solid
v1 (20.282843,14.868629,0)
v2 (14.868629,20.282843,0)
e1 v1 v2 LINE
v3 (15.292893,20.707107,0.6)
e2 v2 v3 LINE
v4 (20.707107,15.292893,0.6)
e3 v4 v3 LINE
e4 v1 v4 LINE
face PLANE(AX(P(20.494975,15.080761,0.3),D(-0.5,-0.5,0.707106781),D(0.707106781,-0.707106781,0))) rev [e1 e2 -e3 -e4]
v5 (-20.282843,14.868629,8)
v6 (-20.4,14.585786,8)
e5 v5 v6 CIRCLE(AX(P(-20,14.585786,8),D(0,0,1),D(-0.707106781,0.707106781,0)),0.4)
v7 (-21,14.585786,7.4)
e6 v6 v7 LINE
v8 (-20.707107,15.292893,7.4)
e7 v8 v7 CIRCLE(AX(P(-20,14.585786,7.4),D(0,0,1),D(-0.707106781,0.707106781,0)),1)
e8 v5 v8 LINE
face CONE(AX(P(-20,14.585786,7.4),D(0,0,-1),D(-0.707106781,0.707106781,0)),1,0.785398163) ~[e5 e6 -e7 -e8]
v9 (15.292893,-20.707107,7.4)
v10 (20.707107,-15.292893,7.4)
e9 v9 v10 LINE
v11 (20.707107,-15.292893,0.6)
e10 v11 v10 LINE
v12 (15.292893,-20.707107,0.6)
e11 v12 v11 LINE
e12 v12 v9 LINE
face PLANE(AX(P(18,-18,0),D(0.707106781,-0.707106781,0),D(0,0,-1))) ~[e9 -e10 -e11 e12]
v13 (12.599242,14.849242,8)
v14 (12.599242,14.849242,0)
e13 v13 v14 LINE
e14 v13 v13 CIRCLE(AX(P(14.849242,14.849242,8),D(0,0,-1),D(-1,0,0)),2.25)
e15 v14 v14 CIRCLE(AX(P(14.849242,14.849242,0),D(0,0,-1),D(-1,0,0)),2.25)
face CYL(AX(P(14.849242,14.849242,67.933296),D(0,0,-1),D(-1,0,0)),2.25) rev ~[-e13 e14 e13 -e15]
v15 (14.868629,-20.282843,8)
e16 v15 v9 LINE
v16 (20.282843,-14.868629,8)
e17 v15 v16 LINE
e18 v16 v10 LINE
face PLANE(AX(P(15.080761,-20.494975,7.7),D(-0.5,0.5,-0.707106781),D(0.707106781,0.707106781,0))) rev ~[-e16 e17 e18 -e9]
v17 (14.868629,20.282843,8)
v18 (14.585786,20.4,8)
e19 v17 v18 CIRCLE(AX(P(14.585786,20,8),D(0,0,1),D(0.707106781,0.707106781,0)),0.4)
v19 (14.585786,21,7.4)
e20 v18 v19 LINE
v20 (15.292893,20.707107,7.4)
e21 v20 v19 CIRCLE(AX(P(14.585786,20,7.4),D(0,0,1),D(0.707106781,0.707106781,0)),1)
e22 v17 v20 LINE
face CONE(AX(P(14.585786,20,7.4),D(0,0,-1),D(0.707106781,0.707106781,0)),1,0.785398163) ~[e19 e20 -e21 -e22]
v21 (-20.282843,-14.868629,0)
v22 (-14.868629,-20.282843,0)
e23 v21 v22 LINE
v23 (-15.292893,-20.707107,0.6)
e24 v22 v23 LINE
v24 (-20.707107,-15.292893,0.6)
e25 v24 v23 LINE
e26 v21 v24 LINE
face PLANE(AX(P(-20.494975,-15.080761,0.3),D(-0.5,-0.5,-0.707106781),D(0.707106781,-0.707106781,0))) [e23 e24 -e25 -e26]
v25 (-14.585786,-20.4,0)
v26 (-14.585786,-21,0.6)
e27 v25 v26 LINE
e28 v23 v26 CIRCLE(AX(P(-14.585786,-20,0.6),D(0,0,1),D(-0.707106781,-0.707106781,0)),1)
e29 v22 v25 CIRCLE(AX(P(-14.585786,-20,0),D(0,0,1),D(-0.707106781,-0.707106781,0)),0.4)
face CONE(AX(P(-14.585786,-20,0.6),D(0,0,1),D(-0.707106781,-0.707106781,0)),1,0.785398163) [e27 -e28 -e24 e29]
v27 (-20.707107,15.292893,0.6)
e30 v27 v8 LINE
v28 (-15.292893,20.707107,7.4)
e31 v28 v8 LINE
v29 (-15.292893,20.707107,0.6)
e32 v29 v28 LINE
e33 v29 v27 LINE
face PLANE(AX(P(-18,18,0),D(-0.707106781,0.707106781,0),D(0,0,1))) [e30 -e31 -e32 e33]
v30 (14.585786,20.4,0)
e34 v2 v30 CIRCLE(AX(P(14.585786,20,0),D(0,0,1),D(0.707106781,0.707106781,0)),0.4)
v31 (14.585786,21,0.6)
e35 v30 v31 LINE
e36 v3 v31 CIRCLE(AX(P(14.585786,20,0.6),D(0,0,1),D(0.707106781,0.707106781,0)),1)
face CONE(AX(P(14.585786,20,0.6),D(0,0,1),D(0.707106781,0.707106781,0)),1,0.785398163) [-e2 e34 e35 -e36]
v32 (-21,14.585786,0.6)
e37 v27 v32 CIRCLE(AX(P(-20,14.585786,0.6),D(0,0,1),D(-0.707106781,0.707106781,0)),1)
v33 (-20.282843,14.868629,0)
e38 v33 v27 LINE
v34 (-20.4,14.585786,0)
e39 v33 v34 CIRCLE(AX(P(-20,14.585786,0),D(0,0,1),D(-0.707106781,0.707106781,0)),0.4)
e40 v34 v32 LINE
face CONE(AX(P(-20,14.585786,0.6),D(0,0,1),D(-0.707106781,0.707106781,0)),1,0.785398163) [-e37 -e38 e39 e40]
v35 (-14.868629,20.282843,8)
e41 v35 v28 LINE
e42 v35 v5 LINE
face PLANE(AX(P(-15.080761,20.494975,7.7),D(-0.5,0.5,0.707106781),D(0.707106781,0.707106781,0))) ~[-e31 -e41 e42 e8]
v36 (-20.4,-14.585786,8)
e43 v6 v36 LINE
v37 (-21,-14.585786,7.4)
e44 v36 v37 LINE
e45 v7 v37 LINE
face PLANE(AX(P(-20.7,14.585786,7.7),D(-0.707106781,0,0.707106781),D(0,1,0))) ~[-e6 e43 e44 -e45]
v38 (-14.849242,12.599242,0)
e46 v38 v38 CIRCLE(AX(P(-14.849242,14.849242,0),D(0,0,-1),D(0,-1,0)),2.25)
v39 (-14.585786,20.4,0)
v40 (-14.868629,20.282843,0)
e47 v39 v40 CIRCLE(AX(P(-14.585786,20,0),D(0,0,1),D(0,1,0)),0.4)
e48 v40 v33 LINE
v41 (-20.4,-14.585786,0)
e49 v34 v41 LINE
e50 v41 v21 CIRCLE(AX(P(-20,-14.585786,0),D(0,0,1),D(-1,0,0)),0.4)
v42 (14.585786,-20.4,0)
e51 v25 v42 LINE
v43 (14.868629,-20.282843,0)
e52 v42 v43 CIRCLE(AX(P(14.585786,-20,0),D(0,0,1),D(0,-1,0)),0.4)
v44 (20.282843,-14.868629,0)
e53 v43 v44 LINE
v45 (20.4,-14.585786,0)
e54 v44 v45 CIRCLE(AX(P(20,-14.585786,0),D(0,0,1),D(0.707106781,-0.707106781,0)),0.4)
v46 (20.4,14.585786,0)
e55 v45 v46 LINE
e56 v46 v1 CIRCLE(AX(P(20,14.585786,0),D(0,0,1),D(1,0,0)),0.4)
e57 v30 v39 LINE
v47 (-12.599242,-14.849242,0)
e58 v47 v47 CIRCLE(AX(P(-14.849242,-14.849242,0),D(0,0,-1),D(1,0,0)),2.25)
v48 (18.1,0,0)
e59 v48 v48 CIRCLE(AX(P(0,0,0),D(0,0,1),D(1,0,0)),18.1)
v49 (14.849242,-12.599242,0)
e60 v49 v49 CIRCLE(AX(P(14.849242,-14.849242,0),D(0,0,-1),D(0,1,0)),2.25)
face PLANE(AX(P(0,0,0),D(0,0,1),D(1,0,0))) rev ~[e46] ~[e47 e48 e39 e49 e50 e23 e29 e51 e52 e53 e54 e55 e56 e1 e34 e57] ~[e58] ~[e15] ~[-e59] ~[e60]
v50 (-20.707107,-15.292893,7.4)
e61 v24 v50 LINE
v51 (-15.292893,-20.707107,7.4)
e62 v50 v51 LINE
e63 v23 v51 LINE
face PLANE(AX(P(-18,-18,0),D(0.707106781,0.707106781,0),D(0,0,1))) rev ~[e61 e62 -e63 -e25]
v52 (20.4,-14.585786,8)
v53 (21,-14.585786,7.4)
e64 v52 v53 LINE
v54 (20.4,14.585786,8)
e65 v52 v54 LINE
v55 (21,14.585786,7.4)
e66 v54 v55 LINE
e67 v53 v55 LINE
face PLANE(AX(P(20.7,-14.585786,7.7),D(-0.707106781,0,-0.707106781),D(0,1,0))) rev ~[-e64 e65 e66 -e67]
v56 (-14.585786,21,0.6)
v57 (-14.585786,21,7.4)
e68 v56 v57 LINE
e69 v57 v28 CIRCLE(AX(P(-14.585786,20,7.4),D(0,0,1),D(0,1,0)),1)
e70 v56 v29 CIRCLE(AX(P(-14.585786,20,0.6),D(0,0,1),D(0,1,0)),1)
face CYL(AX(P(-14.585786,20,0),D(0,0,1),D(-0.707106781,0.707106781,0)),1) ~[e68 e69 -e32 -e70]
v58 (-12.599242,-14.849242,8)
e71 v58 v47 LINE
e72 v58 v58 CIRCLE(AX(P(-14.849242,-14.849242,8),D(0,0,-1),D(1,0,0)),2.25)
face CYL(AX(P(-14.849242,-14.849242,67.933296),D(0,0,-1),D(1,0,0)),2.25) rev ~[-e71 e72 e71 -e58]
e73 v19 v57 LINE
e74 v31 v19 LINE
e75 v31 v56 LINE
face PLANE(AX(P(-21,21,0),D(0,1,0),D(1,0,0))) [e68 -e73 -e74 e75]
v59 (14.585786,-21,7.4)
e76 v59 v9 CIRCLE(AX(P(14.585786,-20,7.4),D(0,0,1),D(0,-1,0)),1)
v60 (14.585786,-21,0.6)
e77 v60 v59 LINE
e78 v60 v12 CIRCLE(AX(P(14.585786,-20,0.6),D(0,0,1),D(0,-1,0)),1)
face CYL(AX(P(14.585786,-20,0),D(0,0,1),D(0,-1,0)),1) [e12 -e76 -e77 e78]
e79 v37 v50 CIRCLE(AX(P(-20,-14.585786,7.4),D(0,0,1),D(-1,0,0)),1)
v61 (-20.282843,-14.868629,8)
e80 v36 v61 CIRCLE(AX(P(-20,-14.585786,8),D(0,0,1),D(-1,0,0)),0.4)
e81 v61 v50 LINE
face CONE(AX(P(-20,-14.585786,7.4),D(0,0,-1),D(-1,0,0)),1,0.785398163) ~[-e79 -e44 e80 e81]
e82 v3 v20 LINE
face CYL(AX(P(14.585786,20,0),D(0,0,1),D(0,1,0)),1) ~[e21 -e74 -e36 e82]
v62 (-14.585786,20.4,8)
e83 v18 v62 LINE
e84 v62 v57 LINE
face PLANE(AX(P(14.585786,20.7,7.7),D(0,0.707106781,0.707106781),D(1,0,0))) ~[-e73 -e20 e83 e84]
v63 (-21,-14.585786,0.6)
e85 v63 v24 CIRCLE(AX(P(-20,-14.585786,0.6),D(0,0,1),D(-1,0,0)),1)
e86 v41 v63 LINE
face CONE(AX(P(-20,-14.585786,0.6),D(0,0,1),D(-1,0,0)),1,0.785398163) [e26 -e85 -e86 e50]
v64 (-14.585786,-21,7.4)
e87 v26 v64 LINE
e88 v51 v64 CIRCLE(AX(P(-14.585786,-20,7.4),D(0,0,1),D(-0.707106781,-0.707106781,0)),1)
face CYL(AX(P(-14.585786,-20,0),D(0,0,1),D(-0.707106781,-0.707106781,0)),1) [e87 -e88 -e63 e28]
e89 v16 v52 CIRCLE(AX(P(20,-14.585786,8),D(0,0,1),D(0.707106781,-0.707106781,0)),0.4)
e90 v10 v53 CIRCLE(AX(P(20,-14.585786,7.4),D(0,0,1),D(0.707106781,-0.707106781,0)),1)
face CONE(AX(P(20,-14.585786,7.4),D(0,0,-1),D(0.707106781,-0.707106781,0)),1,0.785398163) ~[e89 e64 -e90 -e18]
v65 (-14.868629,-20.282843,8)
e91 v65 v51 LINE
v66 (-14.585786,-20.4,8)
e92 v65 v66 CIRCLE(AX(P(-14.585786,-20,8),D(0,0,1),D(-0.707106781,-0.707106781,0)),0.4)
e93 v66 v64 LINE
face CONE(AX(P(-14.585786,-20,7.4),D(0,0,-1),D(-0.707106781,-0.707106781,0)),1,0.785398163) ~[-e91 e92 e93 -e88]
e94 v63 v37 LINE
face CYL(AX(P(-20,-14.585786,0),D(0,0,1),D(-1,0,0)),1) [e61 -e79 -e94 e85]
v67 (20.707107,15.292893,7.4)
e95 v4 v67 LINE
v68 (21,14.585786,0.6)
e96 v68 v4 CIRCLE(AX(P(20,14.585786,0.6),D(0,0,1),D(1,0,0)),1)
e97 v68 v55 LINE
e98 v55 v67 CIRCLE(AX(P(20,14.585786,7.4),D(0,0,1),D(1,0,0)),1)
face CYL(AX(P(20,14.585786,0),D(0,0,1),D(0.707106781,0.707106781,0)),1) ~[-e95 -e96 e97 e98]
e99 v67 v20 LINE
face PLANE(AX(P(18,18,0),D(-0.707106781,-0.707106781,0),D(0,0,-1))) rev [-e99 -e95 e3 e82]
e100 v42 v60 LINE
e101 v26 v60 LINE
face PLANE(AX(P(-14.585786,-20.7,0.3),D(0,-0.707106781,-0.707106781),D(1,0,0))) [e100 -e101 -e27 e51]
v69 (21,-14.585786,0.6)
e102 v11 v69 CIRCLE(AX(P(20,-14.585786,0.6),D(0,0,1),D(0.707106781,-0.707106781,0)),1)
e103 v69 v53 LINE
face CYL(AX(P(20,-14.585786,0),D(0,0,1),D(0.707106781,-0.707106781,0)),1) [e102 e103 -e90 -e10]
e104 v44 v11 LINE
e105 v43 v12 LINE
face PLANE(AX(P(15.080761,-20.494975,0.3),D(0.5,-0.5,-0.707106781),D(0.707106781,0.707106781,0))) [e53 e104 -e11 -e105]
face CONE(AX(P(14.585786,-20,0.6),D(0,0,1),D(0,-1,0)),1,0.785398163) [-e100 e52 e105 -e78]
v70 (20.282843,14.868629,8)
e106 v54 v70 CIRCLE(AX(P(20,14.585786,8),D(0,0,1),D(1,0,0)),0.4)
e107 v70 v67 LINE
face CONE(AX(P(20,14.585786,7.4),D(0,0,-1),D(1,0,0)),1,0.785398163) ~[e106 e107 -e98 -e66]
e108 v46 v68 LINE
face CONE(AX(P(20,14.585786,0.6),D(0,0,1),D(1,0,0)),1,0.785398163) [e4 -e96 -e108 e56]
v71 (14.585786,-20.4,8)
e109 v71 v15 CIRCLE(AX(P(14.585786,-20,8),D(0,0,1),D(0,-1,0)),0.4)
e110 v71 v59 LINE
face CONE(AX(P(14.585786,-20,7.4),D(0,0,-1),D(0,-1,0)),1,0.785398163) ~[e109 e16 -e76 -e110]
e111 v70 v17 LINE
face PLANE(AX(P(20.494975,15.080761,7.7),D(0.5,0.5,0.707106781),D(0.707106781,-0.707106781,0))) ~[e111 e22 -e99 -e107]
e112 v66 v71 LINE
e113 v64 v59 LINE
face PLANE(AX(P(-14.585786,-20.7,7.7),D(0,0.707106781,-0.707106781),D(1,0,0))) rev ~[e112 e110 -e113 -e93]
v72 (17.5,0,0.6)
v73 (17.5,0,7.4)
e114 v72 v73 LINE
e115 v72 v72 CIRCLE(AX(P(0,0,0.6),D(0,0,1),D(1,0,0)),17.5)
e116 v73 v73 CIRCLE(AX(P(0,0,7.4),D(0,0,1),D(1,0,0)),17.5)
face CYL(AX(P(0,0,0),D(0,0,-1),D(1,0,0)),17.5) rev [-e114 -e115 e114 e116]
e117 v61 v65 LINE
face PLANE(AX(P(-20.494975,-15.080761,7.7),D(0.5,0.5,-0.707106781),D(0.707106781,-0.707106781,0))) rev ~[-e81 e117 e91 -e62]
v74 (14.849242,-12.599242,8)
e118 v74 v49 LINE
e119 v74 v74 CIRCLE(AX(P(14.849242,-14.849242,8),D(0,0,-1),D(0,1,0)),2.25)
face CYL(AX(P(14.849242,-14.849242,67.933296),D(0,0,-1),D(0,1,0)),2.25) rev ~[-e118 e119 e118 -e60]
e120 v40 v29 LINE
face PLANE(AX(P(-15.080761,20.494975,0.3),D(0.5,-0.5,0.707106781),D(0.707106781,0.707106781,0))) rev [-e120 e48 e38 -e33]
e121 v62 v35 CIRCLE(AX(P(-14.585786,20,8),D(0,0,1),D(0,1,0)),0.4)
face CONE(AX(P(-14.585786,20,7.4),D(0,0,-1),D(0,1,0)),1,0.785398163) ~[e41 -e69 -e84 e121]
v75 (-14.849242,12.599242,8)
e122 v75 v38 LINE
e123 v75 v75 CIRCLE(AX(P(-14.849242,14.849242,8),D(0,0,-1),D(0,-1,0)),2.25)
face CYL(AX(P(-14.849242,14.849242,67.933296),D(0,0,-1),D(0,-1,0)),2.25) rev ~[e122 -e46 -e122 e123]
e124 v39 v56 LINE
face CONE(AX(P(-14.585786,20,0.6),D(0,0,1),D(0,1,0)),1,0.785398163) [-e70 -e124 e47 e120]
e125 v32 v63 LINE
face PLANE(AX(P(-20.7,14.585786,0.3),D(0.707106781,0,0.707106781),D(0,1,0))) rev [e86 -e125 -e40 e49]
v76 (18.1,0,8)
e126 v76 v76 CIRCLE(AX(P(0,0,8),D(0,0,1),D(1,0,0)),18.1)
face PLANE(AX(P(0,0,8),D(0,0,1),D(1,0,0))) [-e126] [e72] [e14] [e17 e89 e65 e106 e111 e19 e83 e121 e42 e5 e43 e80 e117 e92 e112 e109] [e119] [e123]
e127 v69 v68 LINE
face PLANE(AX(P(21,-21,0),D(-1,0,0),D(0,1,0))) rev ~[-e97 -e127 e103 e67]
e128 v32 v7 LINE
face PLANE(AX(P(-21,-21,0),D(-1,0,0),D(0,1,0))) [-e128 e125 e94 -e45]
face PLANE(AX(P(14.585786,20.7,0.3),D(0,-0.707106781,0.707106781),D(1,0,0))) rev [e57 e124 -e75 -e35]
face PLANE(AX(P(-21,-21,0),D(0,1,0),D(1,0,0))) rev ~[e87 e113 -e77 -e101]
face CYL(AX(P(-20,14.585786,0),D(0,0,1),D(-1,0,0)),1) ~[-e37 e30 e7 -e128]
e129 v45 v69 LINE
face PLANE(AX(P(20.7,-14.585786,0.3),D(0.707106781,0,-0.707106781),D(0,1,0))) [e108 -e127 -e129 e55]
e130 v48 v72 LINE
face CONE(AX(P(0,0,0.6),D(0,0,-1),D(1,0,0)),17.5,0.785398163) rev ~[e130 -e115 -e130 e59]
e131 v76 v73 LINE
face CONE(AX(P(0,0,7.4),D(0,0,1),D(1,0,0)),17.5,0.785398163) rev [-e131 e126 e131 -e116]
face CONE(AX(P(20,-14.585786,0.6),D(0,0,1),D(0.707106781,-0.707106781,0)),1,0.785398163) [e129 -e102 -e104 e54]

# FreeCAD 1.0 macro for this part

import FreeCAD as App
import Part
import Sketcher


def edges_at(feature, points):
    """Names of the edges that pass closest to the given points."""
    edges = feature.Shape.Edges
    near = lambda p: min(range(len(edges)), key=lambda i: edges[i].distToShape(Part.Vertex(*p))[0])
    return sorted({f"Edge{near(p) + 1}" for p in points})

doc = App.newDocument("Part")
body = doc.addObject("PartDesign::Body", "Body")

# Sketch on XY plane
sketch1 = body.newObject("Sketcher::SketchObject", "Sketch")
sketch1.AttachmentSupport = (doc.getObject("XY_Plane"), [""])
sketch1.MapMode = "FlatFace"
sketch1.addGeometry(Part.LineSegment(App.Vector(-21, 21, 0), App.Vector(-21, -21, 0)), False)
sketch1.addGeometry(Part.LineSegment(App.Vector(-21, -21, 0), App.Vector(21, -21, 0)), False)
sketch1.addGeometry(Part.LineSegment(App.Vector(21, -21, 0), App.Vector(21, 21, 0)), False)
sketch1.addGeometry(Part.LineSegment(App.Vector(21, 21, 0), App.Vector(-21, 21, 0)), False)
sketch1.addGeometry(Part.Circle(App.Vector(0, 0, 0), App.Vector(0, 0, 1), 17.5), False)
sketch1.addConstraint(Sketcher.Constraint("Coincident", 0, 2, 1, 1))
sketch1.addConstraint(Sketcher.Constraint("Coincident", 1, 2, 2, 1))
sketch1.addConstraint(Sketcher.Constraint("Coincident", 2, 2, 3, 1))
sketch1.addConstraint(Sketcher.Constraint("Coincident", 3, 2, 0, 1))
sketch1.addConstraint(Sketcher.Constraint("Vertical", 0))
sketch1.addConstraint(Sketcher.Constraint("Horizontal", 1))
sketch1.addConstraint(Sketcher.Constraint("Vertical", 2))
sketch1.addConstraint(Sketcher.Constraint("Horizontal", 3))
sketch1.addConstraint(Sketcher.Constraint("Coincident", 4, 3, -1, 1))
sketch1.addConstraint(Sketcher.Constraint("Symmetric", 0, 2, 2, 2, -1, 1))
sketch1.addConstraint(Sketcher.Constraint("Equal", 3, 0))
sketch1.addConstraint(Sketcher.Constraint("Diameter", 4, 35.0))
sketch1.addConstraint(Sketcher.Constraint("DistanceX", 1, 1, 1, 2, 42.0))
pad1 = body.newObject("PartDesign::Pad", "Pad")
pad1.Profile = sketch1
pad1.Length = 8

# Sketch on XY plane
sketch2 = body.newObject("Sketcher::SketchObject", "Sketch001")
sketch2.AttachmentSupport = (doc.getObject("XY_Plane"), [""])
sketch2.MapMode = "FlatFace"
sketch2.AttachmentOffset = App.Placement(App.Vector(0, 0, 8), App.Rotation())
sketch2.addGeometry(Part.Circle(App.Vector(14.849242, 14.849242, 0), App.Vector(0, 0, 1), 2.25), False)
sketch2.addConstraint(Sketcher.Constraint("Diameter", 0, 4.5))
sketch2.addConstraint(Sketcher.Constraint("DistanceX", -1, 1, 0, 3, 14.849242))
sketch2.addConstraint(Sketcher.Constraint("DistanceY", -1, 1, 0, 3, 14.849242))
doc.recompute()
hole = body.newObject("PartDesign::Hole", "Hole")
hole.Profile = sketch2
hole.ThreadType = "None"
hole.Diameter = 4.5
hole.DepthType = "ThroughAll"
doc.recompute()

polarpattern = body.newObject("PartDesign::PolarPattern", "PolarPattern")
polarpattern.Originals = [hole]
polarpattern.Axis = (doc.getObject("Z_Axis"), [""])
polarpattern.Angle = 360
polarpattern.Occurrences = 4
body.Tip = polarpattern
doc.recompute()

chamfer = body.newObject("PartDesign::Chamfer", "Chamfer")
chamfer.Base = (polarpattern, edges_at(polarpattern, [
    (-21, 21, 4),
    (21, 21, 4),
    (21, -21, 4),
    (-21, -21, 4),
]))
chamfer.Size = 6
doc.recompute()

fillet = body.newObject("PartDesign::Fillet", "Fillet")
fillet.Base = (chamfer, edges_at(chamfer, [
    (-21, -15, 4),
    (-21, 15, 4),
    (15, 21, 4),
    (-15, 21, 4),
    (21, -15, 4),
    (21, 15, 4),
    (15, -21, 4),
    (-15, -21, 4),
]))
fillet.Radius = 1
doc.recompute()

chamfer2 = body.newObject("PartDesign::Chamfer", "Chamfer001")
chamfer2.Base = (fillet, edges_at(fillet, [
    (-17.5, 0, 0),
    (-17.5, 0, 8),
    (21, 0, 0),
    (21, 0, 8),
    (-21, 0, 0),
    (-18, 18, 0),
    (0, 21, 0),
    (18, 18, 0),
    (18, -18, 0),
    (0, -21, 0),
    (-18, -18, 0),
    (20.924, 14.968, 0),
    (14.968, 20.924, 0),
    (-14.968, 20.924, 0),
    (-20.924, 14.968, 0),
    (-20.924, -14.968, 0),
    (-14.968, -20.924, 0),
    (14.968, -20.924, 0),
    (20.924, -14.968, 0),
    (18, -18, 8),
    (0, 21, 8),
    (-18, 18, 8),
    (-21, 0, 8),
    (-18, -18, 8),
    (0, -21, 8),
    (18, 18, 8),
    (20.924, 14.968, 8),
    (14.968, 20.924, 8),
    (-14.968, 20.924, 8),
    (-20.924, 14.968, 8),
    (-20.924, -14.968, 8),
    (-14.968, -20.924, 8),
    (14.968, -20.924, 8),
    (20.924, -14.968, 8),
]))
chamfer2.Size = 0.6

doc.recompute()
